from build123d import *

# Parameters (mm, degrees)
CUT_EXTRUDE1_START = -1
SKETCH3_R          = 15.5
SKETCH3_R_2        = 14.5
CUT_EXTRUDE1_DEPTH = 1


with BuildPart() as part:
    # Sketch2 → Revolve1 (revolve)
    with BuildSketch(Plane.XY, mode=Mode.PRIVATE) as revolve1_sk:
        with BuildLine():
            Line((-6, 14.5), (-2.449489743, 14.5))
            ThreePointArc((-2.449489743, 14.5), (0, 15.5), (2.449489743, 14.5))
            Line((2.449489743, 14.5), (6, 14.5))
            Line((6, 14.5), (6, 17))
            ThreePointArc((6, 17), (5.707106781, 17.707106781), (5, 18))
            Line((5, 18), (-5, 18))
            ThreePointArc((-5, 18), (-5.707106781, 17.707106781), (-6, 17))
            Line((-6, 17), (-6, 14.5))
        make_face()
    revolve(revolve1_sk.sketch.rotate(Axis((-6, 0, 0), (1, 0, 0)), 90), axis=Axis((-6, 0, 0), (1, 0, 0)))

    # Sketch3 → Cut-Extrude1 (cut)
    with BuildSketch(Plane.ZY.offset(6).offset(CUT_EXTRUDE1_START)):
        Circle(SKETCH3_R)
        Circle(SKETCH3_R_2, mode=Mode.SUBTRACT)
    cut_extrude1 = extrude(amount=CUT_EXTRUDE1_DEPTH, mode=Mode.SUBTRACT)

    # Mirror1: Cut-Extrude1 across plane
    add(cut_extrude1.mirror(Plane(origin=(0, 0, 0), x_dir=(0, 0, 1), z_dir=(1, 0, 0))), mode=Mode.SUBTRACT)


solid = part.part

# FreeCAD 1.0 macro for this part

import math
import FreeCAD as App
import Part
import Sketcher
Q = App.Units.Quantity

doc = App.newDocument("Part")
body = doc.addObject("PartDesign::Body", "Body")

sketch1 = body.newObject("Sketcher::SketchObject", "Sketch")
sketch1.AttachmentSupport = (doc.getObject("XY_Plane"), [""])
sketch1.MapMode = "FlatFace"
sketch1.addGeometry([
    Part.LineSegment(App.Vector(-6, 14.5, 0), App.Vector(-2.4, 14.5, 0)),
    Part.ArcOfCircle(Part.Circle(App.Vector(0, 12, 0), App.Vector(0, 0, 1), 3.5), math.radians(46), math.radians(134)),
    Part.LineSegment(App.Vector(2.4, 14.5, 0), App.Vector(6, 14.5, 0)),
    Part.LineSegment(App.Vector(6, 14.5, 0), App.Vector(6, 17, 0)),
    Part.ArcOfCircle(Part.Circle(App.Vector(5, 17, 0), App.Vector(0, 0, 1), 1), math.radians(0), math.radians(90)),
    Part.LineSegment(App.Vector(5, 18, 0), App.Vector(-5, 18, 0)),
    Part.ArcOfCircle(Part.Circle(App.Vector(-5, 17, 0), App.Vector(0, 0, 1), 1), math.radians(90), math.radians(180)),
    Part.LineSegment(App.Vector(-6, 17, 0), App.Vector(-6, 14.5, 0)),
], False)
sketch1.addConstraint([
    Sketcher.Constraint("Coincident", 0, 2, 1, 2),
    Sketcher.Constraint("Coincident", 1, 1, 2, 1),
    Sketcher.Constraint("Coincident", 2, 2, 3, 1),
    Sketcher.Constraint("Tangent", 3, 2, 4, 1),
    Sketcher.Constraint("Tangent", 4, 2, 5, 1),
    Sketcher.Constraint("Tangent", 5, 2, 6, 1),
    Sketcher.Constraint("Tangent", 6, 2, 7, 1),
    Sketcher.Constraint("Coincident", 7, 2, 0, 1),
    Sketcher.Constraint("Horizontal", 0),
    Sketcher.Constraint("Horizontal", 2),
    Sketcher.Constraint("Vertical", 3),
    Sketcher.Constraint("Horizontal", 5),
    Sketcher.Constraint("Vertical", 7),
    Sketcher.Constraint("Equal", 4, 6),
    Sketcher.Constraint("Symmetric", 0, 2, 1, 1, -2),
    Sketcher.Constraint("Equal", 0, 2),
    Sketcher.Constraint("Radius", 4, Q("1 mm")),
    Sketcher.Constraint("Radius", 1, Q("3.5 mm")),
    Sketcher.Constraint("DistanceX", 5, 2, 5, 1, Q("10 mm")),
    Sketcher.Constraint("DistanceY", 3, 1, 3, 2, Q("2.5 mm")),
    Sketcher.Constraint("DistanceY", -1, 1, 1, 3, Q("12 mm")),
    Sketcher.Constraint("DistanceY", -1, 1, 4, 3, Q("17 mm")),
])
revolution = body.newObject("PartDesign::Revolution", "Revolution")
revolution.Profile = sketch1
revolution.ReferenceAxis = (sketch1, ["H_Axis"])
revolution.Angle = 360

sketch2 = body.newObject("Sketcher::SketchObject", "Sketch001")
sketch2.AttachmentSupport = (doc.getObject("YZ_Plane"), [""])
sketch2.MapMode = "FlatFace"
sketch2.AttachmentOffset = App.Placement(App.Vector(0, 0, -5), App.Rotation())
sketch2.addGeometry([
    Part.Circle(App.Vector(0, 0, 0), App.Vector(0, 0, 1), 16),
    Part.Circle(App.Vector(0, 0, 0), App.Vector(0, 0, 1), 14),
], False)
sketch2.addConstraint([
    Sketcher.Constraint("Coincident", 0, 3, -1, 1),
    Sketcher.Constraint("Coincident", 1, 3, -1, 1),
    Sketcher.Constraint("Diameter", 0, Q("31 mm")),
    Sketcher.Constraint("Diameter", 1, Q("29 mm")),
])
pocket1 = body.newObject("PartDesign::Pocket", "Pocket")
pocket1.Profile = sketch2
pocket1.Length = 1
doc.recompute()

mirrored = body.newObject("PartDesign::Mirrored", "Mirrored")
mirrored.Originals = [pocket1]
mirrored.MirrorPlane = (doc.getObject("YZ_Plane"), [""])
body.Tip = mirrored

doc.recompute()
